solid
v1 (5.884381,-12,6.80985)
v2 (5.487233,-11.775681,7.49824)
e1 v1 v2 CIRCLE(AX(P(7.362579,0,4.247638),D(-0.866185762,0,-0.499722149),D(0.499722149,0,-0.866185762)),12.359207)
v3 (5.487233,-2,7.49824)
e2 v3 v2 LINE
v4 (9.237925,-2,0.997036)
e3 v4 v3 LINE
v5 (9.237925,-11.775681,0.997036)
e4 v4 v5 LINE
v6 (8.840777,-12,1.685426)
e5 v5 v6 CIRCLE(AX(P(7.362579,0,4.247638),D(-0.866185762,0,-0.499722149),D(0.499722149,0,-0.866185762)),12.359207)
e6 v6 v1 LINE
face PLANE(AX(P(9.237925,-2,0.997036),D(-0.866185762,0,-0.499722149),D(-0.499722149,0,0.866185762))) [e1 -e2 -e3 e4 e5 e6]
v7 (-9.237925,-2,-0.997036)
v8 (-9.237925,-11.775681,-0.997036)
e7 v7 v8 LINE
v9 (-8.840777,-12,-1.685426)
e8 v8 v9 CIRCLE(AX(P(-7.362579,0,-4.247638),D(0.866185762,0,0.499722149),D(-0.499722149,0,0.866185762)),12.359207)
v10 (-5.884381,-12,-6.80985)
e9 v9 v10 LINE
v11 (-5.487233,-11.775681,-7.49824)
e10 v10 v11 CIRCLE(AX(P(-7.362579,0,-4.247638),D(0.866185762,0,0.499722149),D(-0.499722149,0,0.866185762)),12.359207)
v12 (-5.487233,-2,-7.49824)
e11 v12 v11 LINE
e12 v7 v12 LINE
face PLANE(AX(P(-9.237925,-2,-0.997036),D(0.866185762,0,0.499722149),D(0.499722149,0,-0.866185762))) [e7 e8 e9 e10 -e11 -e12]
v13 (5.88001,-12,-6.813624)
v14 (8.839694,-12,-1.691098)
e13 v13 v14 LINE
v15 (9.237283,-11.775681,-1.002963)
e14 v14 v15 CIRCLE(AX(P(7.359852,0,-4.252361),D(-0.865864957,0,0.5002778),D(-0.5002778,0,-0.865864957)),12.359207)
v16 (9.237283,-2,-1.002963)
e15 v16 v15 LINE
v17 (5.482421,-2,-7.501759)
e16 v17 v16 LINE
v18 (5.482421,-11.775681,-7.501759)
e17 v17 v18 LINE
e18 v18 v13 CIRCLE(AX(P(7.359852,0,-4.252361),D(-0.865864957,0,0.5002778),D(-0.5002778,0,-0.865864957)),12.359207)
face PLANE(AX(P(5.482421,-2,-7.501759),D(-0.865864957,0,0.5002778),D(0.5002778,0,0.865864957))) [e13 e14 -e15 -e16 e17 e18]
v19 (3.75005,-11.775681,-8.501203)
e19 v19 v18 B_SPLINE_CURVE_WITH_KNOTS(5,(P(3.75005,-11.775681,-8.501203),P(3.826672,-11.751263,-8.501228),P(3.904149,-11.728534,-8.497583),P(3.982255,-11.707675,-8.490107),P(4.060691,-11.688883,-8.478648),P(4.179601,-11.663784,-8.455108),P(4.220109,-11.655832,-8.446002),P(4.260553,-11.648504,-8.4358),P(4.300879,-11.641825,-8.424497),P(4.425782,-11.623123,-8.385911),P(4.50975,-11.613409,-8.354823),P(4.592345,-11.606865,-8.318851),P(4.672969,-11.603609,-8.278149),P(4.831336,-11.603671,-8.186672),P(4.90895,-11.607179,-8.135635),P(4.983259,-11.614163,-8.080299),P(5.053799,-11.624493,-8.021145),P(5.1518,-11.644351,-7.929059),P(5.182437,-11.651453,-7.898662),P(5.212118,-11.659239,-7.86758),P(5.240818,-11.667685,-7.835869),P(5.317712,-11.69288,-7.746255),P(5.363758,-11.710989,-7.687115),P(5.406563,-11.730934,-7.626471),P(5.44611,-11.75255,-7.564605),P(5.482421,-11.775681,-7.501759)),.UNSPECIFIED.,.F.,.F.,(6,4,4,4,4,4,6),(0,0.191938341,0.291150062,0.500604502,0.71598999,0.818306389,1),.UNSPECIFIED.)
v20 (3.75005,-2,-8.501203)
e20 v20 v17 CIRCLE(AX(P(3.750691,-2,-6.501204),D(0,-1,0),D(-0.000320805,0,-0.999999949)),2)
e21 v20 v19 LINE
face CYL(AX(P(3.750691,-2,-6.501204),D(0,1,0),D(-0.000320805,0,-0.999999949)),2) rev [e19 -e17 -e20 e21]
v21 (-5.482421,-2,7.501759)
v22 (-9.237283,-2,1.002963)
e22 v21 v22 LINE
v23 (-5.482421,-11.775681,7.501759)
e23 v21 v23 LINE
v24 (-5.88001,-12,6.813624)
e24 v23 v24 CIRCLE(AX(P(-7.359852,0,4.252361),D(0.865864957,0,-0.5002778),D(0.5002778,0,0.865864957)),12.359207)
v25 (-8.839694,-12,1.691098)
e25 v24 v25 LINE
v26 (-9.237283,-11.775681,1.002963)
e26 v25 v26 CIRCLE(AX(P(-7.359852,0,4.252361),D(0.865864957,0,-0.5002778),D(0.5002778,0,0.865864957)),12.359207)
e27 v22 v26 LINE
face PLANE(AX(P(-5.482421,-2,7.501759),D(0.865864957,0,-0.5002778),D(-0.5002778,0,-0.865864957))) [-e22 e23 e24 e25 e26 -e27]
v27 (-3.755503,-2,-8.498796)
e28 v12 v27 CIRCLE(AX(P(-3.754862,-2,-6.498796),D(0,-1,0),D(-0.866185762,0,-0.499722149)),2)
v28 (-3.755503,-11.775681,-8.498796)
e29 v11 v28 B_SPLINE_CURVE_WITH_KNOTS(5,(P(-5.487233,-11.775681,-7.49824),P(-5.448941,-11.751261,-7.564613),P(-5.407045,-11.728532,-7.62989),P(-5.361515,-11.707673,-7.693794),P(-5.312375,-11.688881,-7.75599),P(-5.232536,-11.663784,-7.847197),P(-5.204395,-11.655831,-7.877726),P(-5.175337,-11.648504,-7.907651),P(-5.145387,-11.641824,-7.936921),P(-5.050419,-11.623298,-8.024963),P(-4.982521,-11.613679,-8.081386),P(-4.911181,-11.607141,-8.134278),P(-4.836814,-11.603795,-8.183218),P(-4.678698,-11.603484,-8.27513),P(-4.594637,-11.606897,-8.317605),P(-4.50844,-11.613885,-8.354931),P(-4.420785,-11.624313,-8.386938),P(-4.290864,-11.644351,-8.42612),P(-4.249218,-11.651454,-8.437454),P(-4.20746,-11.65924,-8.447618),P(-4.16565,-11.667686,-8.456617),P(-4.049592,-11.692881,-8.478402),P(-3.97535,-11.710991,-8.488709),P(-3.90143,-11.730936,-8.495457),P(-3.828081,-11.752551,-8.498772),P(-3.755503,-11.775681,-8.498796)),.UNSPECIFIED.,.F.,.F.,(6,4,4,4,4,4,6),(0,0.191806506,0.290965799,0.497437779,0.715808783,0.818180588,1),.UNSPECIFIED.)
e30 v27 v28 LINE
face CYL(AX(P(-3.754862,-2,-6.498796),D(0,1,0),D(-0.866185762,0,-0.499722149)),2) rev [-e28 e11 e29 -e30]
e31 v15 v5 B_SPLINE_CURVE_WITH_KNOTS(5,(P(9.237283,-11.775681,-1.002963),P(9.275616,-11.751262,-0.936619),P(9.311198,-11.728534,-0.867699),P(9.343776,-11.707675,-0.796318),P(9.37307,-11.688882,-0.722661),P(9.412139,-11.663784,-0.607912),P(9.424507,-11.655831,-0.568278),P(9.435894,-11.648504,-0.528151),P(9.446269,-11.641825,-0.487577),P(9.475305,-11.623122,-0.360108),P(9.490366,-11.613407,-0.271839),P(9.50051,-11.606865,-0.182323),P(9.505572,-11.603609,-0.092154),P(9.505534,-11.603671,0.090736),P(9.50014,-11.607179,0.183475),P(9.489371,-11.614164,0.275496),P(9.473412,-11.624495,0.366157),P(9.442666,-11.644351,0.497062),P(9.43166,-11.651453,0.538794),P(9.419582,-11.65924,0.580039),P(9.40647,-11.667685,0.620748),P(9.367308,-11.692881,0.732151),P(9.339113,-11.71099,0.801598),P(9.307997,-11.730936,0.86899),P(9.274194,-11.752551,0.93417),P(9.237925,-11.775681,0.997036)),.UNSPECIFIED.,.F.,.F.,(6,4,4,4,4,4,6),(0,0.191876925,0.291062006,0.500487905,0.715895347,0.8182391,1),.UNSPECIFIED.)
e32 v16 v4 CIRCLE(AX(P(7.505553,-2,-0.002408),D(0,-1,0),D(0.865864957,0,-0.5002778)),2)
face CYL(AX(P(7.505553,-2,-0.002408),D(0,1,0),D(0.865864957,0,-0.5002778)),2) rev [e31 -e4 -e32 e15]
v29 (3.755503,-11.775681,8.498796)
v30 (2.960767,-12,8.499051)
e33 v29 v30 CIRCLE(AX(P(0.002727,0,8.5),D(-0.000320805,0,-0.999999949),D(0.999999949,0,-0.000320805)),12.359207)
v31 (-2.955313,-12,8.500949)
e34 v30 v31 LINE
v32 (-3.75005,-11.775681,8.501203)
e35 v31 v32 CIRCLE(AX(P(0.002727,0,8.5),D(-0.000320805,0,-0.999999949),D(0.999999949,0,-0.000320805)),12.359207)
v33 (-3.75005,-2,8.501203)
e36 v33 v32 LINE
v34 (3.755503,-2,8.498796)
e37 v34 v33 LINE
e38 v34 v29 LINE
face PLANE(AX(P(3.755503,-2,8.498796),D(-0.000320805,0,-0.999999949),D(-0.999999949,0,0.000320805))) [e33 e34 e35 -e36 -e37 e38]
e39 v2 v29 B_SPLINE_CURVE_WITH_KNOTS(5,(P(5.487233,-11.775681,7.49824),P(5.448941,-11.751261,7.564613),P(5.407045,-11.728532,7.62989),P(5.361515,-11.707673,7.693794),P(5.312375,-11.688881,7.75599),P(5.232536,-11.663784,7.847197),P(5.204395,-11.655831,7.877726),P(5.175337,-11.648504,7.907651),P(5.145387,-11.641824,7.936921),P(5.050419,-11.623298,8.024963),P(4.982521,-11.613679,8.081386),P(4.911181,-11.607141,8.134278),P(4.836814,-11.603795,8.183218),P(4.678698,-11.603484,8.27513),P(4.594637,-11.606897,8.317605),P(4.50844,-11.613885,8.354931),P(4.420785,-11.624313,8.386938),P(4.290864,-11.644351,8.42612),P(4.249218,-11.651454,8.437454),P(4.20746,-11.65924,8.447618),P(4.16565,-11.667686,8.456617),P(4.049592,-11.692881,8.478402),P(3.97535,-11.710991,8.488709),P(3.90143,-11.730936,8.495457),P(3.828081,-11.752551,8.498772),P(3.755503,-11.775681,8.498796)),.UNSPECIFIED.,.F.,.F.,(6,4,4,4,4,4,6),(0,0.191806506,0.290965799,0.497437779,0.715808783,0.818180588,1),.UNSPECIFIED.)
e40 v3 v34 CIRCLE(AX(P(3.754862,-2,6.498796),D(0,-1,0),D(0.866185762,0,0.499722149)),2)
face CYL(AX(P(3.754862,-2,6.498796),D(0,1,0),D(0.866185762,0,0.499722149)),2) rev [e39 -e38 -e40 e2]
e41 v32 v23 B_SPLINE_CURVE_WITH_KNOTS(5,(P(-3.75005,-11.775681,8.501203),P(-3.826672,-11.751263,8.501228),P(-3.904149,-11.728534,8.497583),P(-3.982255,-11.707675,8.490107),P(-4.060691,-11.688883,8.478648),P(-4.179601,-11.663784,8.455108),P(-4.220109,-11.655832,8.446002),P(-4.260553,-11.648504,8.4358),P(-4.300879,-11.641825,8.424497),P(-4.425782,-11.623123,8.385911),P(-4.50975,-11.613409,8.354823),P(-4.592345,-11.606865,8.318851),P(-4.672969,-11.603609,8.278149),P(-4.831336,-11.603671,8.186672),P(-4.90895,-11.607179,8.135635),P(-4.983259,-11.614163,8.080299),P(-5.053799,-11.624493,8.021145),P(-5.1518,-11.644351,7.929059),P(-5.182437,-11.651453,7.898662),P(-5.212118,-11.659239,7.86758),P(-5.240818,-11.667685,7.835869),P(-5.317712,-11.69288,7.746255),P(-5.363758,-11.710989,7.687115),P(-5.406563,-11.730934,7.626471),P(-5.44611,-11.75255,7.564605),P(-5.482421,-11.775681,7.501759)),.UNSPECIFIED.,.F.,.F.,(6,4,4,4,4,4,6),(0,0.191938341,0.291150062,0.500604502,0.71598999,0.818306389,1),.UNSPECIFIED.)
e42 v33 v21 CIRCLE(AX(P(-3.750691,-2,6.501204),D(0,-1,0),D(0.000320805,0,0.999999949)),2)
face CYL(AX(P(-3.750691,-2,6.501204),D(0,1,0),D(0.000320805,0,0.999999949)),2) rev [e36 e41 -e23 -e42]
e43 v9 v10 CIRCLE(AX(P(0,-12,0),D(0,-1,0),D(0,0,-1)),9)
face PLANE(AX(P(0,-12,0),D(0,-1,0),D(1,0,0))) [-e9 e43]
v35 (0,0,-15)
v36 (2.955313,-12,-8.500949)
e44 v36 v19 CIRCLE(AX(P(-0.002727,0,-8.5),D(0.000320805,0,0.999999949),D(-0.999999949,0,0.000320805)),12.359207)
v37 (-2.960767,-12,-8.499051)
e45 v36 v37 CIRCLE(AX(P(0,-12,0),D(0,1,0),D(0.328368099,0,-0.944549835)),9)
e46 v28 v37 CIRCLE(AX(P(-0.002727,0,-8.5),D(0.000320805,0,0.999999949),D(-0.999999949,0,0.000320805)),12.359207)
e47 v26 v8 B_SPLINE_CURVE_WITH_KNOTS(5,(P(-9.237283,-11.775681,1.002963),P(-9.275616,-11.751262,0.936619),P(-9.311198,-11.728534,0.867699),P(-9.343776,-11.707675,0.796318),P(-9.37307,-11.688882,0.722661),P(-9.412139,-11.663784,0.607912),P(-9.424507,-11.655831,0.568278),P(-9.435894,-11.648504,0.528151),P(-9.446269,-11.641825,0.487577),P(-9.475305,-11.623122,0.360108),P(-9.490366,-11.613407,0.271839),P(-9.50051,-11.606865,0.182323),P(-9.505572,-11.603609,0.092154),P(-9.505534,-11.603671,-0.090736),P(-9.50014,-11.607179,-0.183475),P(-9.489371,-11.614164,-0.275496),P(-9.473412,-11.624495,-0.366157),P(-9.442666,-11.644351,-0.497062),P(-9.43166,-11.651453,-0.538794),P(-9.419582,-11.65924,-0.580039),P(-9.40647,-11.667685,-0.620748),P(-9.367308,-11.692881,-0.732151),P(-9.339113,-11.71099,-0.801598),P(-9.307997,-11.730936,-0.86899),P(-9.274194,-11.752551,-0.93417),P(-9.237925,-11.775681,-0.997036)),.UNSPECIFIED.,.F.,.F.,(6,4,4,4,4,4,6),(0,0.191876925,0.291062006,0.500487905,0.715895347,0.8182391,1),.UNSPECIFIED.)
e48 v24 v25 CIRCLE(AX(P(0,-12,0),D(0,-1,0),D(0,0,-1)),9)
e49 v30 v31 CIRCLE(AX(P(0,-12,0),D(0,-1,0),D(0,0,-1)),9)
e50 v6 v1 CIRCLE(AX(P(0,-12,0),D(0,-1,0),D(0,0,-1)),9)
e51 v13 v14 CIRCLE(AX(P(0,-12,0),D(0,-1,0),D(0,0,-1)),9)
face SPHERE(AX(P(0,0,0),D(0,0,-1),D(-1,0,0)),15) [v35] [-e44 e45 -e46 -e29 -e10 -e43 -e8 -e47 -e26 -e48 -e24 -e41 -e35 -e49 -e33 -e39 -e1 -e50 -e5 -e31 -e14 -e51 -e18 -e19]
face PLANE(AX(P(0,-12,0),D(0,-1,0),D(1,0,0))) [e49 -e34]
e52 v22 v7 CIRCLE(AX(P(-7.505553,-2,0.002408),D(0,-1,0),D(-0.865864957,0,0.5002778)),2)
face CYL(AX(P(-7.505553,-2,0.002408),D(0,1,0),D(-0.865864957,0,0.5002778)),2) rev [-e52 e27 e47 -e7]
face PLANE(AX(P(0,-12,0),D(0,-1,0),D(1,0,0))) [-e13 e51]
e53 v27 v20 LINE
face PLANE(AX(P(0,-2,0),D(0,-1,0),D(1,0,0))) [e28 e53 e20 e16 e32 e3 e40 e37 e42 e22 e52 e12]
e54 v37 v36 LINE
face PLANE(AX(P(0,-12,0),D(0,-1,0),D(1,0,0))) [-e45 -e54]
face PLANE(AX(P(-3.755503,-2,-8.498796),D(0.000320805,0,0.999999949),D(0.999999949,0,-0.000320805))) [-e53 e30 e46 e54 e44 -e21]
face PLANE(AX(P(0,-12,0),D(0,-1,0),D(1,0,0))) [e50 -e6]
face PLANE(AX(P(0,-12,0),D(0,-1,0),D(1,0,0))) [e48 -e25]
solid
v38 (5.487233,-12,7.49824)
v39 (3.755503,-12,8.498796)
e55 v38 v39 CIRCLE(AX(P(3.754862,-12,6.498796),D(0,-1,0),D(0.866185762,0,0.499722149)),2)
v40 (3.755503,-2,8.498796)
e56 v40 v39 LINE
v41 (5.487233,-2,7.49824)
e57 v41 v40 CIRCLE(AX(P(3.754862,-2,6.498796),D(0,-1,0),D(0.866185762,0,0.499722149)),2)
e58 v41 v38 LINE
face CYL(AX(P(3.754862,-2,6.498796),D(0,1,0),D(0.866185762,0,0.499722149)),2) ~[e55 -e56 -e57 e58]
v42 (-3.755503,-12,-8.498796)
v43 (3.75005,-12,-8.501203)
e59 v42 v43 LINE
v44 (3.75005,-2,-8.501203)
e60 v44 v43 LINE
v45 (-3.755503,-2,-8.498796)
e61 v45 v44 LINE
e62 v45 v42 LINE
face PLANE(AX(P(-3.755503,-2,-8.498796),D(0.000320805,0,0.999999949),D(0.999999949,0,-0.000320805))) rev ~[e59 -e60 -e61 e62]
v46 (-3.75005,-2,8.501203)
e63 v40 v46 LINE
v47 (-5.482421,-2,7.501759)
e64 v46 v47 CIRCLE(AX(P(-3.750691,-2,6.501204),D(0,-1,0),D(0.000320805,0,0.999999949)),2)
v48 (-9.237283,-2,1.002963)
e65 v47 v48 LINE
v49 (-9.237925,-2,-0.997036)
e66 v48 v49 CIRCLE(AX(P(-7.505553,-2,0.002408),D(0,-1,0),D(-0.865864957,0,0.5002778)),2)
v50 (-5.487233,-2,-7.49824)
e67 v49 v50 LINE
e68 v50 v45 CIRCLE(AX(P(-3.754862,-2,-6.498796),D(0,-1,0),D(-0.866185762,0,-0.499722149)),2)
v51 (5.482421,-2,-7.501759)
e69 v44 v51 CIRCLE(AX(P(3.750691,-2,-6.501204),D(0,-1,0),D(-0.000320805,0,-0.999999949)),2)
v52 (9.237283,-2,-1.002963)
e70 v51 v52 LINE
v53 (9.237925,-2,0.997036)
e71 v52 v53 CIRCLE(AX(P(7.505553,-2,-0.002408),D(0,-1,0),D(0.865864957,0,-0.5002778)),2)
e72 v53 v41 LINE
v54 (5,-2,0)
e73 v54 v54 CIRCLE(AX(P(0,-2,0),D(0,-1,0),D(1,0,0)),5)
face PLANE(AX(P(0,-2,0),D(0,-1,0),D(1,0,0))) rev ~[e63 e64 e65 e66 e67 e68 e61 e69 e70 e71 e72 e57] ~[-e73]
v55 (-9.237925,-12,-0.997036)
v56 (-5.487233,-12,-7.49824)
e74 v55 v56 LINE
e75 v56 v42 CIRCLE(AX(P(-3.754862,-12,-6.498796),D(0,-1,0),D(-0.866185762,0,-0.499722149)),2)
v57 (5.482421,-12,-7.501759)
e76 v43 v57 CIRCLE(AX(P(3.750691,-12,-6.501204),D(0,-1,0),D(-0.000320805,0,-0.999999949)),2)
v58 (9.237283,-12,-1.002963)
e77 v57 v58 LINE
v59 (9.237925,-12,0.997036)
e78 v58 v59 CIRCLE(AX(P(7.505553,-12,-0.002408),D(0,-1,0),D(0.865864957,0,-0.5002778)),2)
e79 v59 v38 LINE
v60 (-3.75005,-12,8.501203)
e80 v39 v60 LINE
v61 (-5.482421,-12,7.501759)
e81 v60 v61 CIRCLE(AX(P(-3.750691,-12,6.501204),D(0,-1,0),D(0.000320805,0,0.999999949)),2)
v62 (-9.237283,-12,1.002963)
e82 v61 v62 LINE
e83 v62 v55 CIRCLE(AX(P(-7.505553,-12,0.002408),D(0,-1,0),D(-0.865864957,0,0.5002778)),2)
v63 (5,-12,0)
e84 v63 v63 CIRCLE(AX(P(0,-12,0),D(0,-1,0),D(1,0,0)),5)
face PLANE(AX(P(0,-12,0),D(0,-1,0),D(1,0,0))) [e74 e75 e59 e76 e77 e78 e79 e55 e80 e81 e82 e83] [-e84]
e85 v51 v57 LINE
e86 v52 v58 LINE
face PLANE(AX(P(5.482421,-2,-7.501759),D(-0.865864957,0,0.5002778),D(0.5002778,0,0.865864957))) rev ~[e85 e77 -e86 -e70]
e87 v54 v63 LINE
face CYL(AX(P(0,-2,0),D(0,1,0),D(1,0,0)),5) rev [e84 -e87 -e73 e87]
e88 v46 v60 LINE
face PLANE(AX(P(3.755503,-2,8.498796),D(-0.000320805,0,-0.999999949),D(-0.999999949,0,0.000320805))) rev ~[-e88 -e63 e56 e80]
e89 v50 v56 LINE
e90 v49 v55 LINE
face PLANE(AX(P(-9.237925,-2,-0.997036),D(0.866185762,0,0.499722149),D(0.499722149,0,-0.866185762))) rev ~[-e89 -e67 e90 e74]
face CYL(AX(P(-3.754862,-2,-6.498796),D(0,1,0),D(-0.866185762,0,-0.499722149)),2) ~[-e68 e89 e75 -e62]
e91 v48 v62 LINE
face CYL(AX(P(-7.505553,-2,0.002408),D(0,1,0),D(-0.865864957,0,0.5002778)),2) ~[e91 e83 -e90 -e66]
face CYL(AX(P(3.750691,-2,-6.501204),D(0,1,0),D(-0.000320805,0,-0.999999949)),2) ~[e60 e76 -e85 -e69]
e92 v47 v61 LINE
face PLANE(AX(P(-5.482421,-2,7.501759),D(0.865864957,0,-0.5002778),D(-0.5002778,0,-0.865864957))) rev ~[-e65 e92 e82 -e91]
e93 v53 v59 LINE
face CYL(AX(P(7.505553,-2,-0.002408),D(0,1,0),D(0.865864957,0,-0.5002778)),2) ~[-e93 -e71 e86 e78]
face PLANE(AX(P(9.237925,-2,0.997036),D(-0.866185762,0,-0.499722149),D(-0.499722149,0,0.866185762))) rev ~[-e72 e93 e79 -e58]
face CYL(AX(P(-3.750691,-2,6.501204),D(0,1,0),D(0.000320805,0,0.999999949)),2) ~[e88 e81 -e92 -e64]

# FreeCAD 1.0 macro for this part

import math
import FreeCAD as App
import Part
import Sketcher

V = App.Vector
Q = App.Units.Quantity


def add_polygon(sketch, points):
    """Adds a closed chain of lines whose ends are joined by coincident constraints."""
    first, n = sketch.GeometryCount, len(points)
    for a, b in zip(points, points[1:] + points[:1]):
        sketch.addGeometry(Part.LineSegment(App.Vector(*a, 0), App.Vector(*b, 0)), False)
    for i in range(n):
        sketch.addConstraint(Sketcher.Constraint("Coincident", first + i, 2, first + (i + 1) % n, 1))

doc = App.newDocument("Part")
params = doc.addObject("Spreadsheet::Sheet", "Params")
for row, (alias, value) in enumerate([
    ("sketch1_radius", "15 mm"),
    ("revolution_angle", "360 deg"),
    ("sketch2_diameter", "10 mm"),
    ("sketch2_width", "45 mm"),
    ("pocket1_length", "25 mm"),
    ("sketch3_diameter", "10 mm"),
    ("sketch3_radius", "2 mm"),
    ("pad1_length", "10 mm"),
    ("sketch4_diameter", "10 mm"),
    ("pocket2_length", "20 mm"),
], start=1):
    params.set(f"A{row}", alias)
    params.set(f"B{row}", "=" + value)
    params.setAlias(f"B{row}", alias)

body = doc.addObject("PartDesign::Body", "Body")

# Sketch on XZ plane
sketch1 = body.newObject("Sketcher::SketchObject", "Sketch")
sketch1.AttachmentSupport = (doc.getObject("XZ_Plane"), [""])
sketch1.MapMode = "FlatFace"
sketch1.addGeometry(Part.LineSegment(V(0, -15, 0), V(0, 15, 0)), False)
sketch1.addGeometry(Part.ArcOfCircle(Part.Circle(V(0, 0, 0), V(0, 0, 1), 15), math.radians(90), math.radians(270)), False)
sketch1.addConstraint(Sketcher.Constraint("Coincident", 0, 1, 1, 2))
sketch1.addConstraint(Sketcher.Constraint("Coincident", 1, 1, 0, 2))
sketch1.addConstraint(Sketcher.Constraint("Vertical", 0))
sketch1.addConstraint(Sketcher.Constraint("Coincident", 1, 3, -1, 1))
sketch1.addConstraint(Sketcher.Constraint("PointOnObject", 0, 1, -2))
sketch1.addConstraint(Sketcher.Constraint("Radius", 1, Q("15 mm")))
sketch1.setExpression("Constraints[5]", "Params.sketch1_radius")
revolution = body.newObject("PartDesign::Revolution", "Revolution")
revolution.Profile = sketch1
revolution.ReferenceAxis = (sketch1, ["V_Axis"])
revolution.setExpression("Angle", "Params.revolution_angle")

# Sketch on XZ plane
sketch2 = body.newObject("Sketcher::SketchObject", "Sketch001")
sketch2.AttachmentSupport = (doc.getObject("XZ_Plane"), [""])
sketch2.MapMode = "FlatFace"
sketch2.AttachmentOffset = App.Placement(V(0, 0, 12), App.Rotation())
add_polygon(sketch2, [(-22, 22), (-22, -22), (22, -22), (22, 22)])  # lines 0-3
sketch2.addGeometry(Part.Circle(V(0, 0, 0), V(0, 0, 1), 5), False)  # 4
sketch2.addConstraint(Sketcher.Constraint("Vertical", 0))
sketch2.addConstraint(Sketcher.Constraint("Horizontal", 1))
sketch2.addConstraint(Sketcher.Constraint("Vertical", 2))
sketch2.addConstraint(Sketcher.Constraint("Horizontal", 3))
sketch2.addConstraint(Sketcher.Constraint("Coincident", 4, 3, -1, 1))
sketch2.addConstraint(Sketcher.Constraint("Symmetric", 0, 2, 2, 2, -1, 1))
sketch2.addConstraint(Sketcher.Constraint("Equal", 3, 0))
sketch2.addConstraint(Sketcher.Constraint("Diameter", 4, Q("10 mm")))
sketch2.addConstraint(Sketcher.Constraint("DistanceX", 1, 1, 1, 2, Q("45 mm")))
sketch2.setExpression("Constraints[11]", "Params.sketch2_diameter")
sketch2.setExpression("Constraints[12]", "Params.sketch2_width")
pocket1 = body.newObject("PartDesign::Pocket", "Pocket")
pocket1.Profile = sketch2
pocket1.setExpression("Length", "Params.pocket1_length")
pocket1.Reversed = True
body2 = doc.addObject("PartDesign::Body", "Body001")

# Sketch on XZ plane
sketch3 = body2.newObject("Sketcher::SketchObject", "Sketch002")
sketch3.AttachmentSupport = (doc.getObject("XZ_Plane001"), [""])
sketch3.MapMode = "FlatFace"
sketch3.AttachmentOffset = App.Placement(V(0, 0, 2), App.Rotation())
sketch3.addGeometry(Part.LineSegment(V(9.2, 1, 0), V(5.5, 7.5, 0)), False)
sketch3.addGeometry(Part.ArcOfCircle(Part.Circle(V(3.8, 6.5, 0), V(0, 0, 1), 2), math.radians(30), math.radians(90)), False)
sketch3.addGeometry(Part.LineSegment(V(3.8, 8.5, 0), V(-3.8, 8.5, 0)), False)
sketch3.addGeometry(Part.ArcOfCircle(Part.Circle(V(-3.8, 6.5, 0), V(0, 0, 1), 2), math.radians(90), math.radians(150)), False)
sketch3.addGeometry(Part.LineSegment(V(-5.5, 7.5, 0), V(-9.2, 1, 0)), False)
sketch3.addGeometry(Part.ArcOfCircle(Part.Circle(V(-7.5, 0, 0), V(0, 0, 1), 2), math.radians(150), math.radians(210)), False)
sketch3.addGeometry(Part.LineSegment(V(-9.2, -1, 0), V(-5.5, -7.5, 0)), False)
sketch3.addGeometry(Part.ArcOfCircle(Part.Circle(V(-3.8, -6.5, 0), V(0, 0, 1), 2), math.radians(-150), math.radians(-90)), False)
sketch3.addGeometry(Part.LineSegment(V(-3.8, -8.5, 0), V(3.8, -8.5, 0)), False)
sketch3.addGeometry(Part.ArcOfCircle(Part.Circle(V(3.8, -6.5, 0), V(0, 0, 1), 2), math.radians(-90), math.radians(-30)), False)
sketch3.addGeometry(Part.LineSegment(V(5.5, -7.5, 0), V(9.2, -1, 0)), False)
sketch3.addGeometry(Part.ArcOfCircle(Part.Circle(V(7.5, 0, 0), V(0, 0, 1), 2), math.radians(-30), math.radians(30)), False)
sketch3.addGeometry(Part.Circle(V(0, 0, 0), V(0, 0, 1), 5), False)
sketch3.addConstraint(Sketcher.Constraint("Tangent", 0, 2, 1, 1))
sketch3.addConstraint(Sketcher.Constraint("Tangent", 1, 2, 2, 1))
sketch3.addConstraint(Sketcher.Constraint("Tangent", 2, 2, 3, 1))
sketch3.addConstraint(Sketcher.Constraint("Tangent", 3, 2, 4, 1))
sketch3.addConstraint(Sketcher.Constraint("Tangent", 4, 2, 5, 1))
sketch3.addConstraint(Sketcher.Constraint("Tangent", 5, 2, 6, 1))
sketch3.addConstraint(Sketcher.Constraint("Tangent", 6, 2, 7, 1))
sketch3.addConstraint(Sketcher.Constraint("Tangent", 7, 2, 8, 1))
sketch3.addConstraint(Sketcher.Constraint("Tangent", 8, 2, 9, 1))
sketch3.addConstraint(Sketcher.Constraint("Tangent", 9, 2, 10, 1))
sketch3.addConstraint(Sketcher.Constraint("Tangent", 10, 2, 11, 1))
sketch3.addConstraint(Sketcher.Constraint("Tangent", 11, 2, 0, 1))
sketch3.addConstraint(Sketcher.Constraint("Coincident", 12, 3, -1, 1))
sketch3.addConstraint(Sketcher.Constraint("Equal", 1, 3))
sketch3.addConstraint(Sketcher.Constraint("Equal", 3, 5))
sketch3.addConstraint(Sketcher.Constraint("Equal", 5, 7))
sketch3.addConstraint(Sketcher.Constraint("Equal", 7, 9))
sketch3.addConstraint(Sketcher.Constraint("Equal", 9, 11))
sketch3.addConstraint(Sketcher.Constraint("Symmetric", 1, 3, 7, 3, -1, 1))
sketch3.addConstraint(Sketcher.Constraint("Symmetric", 3, 3, 9, 3, -1, 1))
sketch3.addConstraint(Sketcher.Constraint("Symmetric", 5, 3, 11, 3, -1, 1))
sketch3.addConstraint(Sketcher.Constraint("Equal", 0, 2))
sketch3.addConstraint(Sketcher.Constraint("Equal", 2, 4))
sketch3.addConstraint(Sketcher.Constraint("Diameter", 12, Q("10 mm")))
sketch3.addConstraint(Sketcher.Constraint("Radius", 1, Q("2 mm")))
sketch3.addConstraint(Sketcher.Constraint("DistanceY", 7, 3, 3, 3, Q("12.999999 mm")))
sketch3.addConstraint(Sketcher.Constraint("DistanceY", 5, 2, 4, 2, Q("2 mm")))
sketch3.addConstraint(Sketcher.Constraint("DistanceX", -1, 1, 1, 3, Q("3.754862 mm")))
sketch3.addConstraint(Sketcher.Constraint("DistanceY", -1, 1, 0, 2, Q("7.49824 mm")))
sketch3.setExpression("Constraints[23]", "Params.sketch3_diameter")
sketch3.setExpression("Constraints[24]", "Params.sketch3_radius")
pad1 = body2.newObject("PartDesign::Pad", "Pad")
pad1.Profile = sketch3
pad1.setExpression("Length", "Params.pad1_length")
doc.recompute()

body3 = doc.addObject("PartDesign::Body", "Body002")
body3.BaseFeature = body2
boolean = body.newObject("PartDesign::Boolean", "Boolean")
boolean.Type = "Cut"
boolean.addObjects([body3])
doc.recompute()

# Sketch on XZ plane
sketch4 = body.newObject("Sketcher::SketchObject", "Sketch003")
sketch4.AttachmentSupport = (doc.getObject("XZ_Plane"), [""])
sketch4.MapMode = "FlatFace"
sketch4.AttachmentOffset = App.Placement(V(0, 0, 12), App.Rotation())
sketch4.addGeometry(Part.Circle(V(0, 0, 0), V(0, 0, 1), 5), False)
sketch4.addConstraint(Sketcher.Constraint("Coincident", 0, 3, -1, 1))
sketch4.addConstraint(Sketcher.Constraint("Diameter", 0, Q("10 mm")))
sketch4.setExpression("Constraints[1]", "Params.sketch4_diameter")
pocket2 = body.newObject("PartDesign::Pocket", "Pocket001")
pocket2.Profile = sketch4
pocket2.setExpression("Length", "Params.pocket2_length")
pocket2.Midplane = True

doc.recompute()
